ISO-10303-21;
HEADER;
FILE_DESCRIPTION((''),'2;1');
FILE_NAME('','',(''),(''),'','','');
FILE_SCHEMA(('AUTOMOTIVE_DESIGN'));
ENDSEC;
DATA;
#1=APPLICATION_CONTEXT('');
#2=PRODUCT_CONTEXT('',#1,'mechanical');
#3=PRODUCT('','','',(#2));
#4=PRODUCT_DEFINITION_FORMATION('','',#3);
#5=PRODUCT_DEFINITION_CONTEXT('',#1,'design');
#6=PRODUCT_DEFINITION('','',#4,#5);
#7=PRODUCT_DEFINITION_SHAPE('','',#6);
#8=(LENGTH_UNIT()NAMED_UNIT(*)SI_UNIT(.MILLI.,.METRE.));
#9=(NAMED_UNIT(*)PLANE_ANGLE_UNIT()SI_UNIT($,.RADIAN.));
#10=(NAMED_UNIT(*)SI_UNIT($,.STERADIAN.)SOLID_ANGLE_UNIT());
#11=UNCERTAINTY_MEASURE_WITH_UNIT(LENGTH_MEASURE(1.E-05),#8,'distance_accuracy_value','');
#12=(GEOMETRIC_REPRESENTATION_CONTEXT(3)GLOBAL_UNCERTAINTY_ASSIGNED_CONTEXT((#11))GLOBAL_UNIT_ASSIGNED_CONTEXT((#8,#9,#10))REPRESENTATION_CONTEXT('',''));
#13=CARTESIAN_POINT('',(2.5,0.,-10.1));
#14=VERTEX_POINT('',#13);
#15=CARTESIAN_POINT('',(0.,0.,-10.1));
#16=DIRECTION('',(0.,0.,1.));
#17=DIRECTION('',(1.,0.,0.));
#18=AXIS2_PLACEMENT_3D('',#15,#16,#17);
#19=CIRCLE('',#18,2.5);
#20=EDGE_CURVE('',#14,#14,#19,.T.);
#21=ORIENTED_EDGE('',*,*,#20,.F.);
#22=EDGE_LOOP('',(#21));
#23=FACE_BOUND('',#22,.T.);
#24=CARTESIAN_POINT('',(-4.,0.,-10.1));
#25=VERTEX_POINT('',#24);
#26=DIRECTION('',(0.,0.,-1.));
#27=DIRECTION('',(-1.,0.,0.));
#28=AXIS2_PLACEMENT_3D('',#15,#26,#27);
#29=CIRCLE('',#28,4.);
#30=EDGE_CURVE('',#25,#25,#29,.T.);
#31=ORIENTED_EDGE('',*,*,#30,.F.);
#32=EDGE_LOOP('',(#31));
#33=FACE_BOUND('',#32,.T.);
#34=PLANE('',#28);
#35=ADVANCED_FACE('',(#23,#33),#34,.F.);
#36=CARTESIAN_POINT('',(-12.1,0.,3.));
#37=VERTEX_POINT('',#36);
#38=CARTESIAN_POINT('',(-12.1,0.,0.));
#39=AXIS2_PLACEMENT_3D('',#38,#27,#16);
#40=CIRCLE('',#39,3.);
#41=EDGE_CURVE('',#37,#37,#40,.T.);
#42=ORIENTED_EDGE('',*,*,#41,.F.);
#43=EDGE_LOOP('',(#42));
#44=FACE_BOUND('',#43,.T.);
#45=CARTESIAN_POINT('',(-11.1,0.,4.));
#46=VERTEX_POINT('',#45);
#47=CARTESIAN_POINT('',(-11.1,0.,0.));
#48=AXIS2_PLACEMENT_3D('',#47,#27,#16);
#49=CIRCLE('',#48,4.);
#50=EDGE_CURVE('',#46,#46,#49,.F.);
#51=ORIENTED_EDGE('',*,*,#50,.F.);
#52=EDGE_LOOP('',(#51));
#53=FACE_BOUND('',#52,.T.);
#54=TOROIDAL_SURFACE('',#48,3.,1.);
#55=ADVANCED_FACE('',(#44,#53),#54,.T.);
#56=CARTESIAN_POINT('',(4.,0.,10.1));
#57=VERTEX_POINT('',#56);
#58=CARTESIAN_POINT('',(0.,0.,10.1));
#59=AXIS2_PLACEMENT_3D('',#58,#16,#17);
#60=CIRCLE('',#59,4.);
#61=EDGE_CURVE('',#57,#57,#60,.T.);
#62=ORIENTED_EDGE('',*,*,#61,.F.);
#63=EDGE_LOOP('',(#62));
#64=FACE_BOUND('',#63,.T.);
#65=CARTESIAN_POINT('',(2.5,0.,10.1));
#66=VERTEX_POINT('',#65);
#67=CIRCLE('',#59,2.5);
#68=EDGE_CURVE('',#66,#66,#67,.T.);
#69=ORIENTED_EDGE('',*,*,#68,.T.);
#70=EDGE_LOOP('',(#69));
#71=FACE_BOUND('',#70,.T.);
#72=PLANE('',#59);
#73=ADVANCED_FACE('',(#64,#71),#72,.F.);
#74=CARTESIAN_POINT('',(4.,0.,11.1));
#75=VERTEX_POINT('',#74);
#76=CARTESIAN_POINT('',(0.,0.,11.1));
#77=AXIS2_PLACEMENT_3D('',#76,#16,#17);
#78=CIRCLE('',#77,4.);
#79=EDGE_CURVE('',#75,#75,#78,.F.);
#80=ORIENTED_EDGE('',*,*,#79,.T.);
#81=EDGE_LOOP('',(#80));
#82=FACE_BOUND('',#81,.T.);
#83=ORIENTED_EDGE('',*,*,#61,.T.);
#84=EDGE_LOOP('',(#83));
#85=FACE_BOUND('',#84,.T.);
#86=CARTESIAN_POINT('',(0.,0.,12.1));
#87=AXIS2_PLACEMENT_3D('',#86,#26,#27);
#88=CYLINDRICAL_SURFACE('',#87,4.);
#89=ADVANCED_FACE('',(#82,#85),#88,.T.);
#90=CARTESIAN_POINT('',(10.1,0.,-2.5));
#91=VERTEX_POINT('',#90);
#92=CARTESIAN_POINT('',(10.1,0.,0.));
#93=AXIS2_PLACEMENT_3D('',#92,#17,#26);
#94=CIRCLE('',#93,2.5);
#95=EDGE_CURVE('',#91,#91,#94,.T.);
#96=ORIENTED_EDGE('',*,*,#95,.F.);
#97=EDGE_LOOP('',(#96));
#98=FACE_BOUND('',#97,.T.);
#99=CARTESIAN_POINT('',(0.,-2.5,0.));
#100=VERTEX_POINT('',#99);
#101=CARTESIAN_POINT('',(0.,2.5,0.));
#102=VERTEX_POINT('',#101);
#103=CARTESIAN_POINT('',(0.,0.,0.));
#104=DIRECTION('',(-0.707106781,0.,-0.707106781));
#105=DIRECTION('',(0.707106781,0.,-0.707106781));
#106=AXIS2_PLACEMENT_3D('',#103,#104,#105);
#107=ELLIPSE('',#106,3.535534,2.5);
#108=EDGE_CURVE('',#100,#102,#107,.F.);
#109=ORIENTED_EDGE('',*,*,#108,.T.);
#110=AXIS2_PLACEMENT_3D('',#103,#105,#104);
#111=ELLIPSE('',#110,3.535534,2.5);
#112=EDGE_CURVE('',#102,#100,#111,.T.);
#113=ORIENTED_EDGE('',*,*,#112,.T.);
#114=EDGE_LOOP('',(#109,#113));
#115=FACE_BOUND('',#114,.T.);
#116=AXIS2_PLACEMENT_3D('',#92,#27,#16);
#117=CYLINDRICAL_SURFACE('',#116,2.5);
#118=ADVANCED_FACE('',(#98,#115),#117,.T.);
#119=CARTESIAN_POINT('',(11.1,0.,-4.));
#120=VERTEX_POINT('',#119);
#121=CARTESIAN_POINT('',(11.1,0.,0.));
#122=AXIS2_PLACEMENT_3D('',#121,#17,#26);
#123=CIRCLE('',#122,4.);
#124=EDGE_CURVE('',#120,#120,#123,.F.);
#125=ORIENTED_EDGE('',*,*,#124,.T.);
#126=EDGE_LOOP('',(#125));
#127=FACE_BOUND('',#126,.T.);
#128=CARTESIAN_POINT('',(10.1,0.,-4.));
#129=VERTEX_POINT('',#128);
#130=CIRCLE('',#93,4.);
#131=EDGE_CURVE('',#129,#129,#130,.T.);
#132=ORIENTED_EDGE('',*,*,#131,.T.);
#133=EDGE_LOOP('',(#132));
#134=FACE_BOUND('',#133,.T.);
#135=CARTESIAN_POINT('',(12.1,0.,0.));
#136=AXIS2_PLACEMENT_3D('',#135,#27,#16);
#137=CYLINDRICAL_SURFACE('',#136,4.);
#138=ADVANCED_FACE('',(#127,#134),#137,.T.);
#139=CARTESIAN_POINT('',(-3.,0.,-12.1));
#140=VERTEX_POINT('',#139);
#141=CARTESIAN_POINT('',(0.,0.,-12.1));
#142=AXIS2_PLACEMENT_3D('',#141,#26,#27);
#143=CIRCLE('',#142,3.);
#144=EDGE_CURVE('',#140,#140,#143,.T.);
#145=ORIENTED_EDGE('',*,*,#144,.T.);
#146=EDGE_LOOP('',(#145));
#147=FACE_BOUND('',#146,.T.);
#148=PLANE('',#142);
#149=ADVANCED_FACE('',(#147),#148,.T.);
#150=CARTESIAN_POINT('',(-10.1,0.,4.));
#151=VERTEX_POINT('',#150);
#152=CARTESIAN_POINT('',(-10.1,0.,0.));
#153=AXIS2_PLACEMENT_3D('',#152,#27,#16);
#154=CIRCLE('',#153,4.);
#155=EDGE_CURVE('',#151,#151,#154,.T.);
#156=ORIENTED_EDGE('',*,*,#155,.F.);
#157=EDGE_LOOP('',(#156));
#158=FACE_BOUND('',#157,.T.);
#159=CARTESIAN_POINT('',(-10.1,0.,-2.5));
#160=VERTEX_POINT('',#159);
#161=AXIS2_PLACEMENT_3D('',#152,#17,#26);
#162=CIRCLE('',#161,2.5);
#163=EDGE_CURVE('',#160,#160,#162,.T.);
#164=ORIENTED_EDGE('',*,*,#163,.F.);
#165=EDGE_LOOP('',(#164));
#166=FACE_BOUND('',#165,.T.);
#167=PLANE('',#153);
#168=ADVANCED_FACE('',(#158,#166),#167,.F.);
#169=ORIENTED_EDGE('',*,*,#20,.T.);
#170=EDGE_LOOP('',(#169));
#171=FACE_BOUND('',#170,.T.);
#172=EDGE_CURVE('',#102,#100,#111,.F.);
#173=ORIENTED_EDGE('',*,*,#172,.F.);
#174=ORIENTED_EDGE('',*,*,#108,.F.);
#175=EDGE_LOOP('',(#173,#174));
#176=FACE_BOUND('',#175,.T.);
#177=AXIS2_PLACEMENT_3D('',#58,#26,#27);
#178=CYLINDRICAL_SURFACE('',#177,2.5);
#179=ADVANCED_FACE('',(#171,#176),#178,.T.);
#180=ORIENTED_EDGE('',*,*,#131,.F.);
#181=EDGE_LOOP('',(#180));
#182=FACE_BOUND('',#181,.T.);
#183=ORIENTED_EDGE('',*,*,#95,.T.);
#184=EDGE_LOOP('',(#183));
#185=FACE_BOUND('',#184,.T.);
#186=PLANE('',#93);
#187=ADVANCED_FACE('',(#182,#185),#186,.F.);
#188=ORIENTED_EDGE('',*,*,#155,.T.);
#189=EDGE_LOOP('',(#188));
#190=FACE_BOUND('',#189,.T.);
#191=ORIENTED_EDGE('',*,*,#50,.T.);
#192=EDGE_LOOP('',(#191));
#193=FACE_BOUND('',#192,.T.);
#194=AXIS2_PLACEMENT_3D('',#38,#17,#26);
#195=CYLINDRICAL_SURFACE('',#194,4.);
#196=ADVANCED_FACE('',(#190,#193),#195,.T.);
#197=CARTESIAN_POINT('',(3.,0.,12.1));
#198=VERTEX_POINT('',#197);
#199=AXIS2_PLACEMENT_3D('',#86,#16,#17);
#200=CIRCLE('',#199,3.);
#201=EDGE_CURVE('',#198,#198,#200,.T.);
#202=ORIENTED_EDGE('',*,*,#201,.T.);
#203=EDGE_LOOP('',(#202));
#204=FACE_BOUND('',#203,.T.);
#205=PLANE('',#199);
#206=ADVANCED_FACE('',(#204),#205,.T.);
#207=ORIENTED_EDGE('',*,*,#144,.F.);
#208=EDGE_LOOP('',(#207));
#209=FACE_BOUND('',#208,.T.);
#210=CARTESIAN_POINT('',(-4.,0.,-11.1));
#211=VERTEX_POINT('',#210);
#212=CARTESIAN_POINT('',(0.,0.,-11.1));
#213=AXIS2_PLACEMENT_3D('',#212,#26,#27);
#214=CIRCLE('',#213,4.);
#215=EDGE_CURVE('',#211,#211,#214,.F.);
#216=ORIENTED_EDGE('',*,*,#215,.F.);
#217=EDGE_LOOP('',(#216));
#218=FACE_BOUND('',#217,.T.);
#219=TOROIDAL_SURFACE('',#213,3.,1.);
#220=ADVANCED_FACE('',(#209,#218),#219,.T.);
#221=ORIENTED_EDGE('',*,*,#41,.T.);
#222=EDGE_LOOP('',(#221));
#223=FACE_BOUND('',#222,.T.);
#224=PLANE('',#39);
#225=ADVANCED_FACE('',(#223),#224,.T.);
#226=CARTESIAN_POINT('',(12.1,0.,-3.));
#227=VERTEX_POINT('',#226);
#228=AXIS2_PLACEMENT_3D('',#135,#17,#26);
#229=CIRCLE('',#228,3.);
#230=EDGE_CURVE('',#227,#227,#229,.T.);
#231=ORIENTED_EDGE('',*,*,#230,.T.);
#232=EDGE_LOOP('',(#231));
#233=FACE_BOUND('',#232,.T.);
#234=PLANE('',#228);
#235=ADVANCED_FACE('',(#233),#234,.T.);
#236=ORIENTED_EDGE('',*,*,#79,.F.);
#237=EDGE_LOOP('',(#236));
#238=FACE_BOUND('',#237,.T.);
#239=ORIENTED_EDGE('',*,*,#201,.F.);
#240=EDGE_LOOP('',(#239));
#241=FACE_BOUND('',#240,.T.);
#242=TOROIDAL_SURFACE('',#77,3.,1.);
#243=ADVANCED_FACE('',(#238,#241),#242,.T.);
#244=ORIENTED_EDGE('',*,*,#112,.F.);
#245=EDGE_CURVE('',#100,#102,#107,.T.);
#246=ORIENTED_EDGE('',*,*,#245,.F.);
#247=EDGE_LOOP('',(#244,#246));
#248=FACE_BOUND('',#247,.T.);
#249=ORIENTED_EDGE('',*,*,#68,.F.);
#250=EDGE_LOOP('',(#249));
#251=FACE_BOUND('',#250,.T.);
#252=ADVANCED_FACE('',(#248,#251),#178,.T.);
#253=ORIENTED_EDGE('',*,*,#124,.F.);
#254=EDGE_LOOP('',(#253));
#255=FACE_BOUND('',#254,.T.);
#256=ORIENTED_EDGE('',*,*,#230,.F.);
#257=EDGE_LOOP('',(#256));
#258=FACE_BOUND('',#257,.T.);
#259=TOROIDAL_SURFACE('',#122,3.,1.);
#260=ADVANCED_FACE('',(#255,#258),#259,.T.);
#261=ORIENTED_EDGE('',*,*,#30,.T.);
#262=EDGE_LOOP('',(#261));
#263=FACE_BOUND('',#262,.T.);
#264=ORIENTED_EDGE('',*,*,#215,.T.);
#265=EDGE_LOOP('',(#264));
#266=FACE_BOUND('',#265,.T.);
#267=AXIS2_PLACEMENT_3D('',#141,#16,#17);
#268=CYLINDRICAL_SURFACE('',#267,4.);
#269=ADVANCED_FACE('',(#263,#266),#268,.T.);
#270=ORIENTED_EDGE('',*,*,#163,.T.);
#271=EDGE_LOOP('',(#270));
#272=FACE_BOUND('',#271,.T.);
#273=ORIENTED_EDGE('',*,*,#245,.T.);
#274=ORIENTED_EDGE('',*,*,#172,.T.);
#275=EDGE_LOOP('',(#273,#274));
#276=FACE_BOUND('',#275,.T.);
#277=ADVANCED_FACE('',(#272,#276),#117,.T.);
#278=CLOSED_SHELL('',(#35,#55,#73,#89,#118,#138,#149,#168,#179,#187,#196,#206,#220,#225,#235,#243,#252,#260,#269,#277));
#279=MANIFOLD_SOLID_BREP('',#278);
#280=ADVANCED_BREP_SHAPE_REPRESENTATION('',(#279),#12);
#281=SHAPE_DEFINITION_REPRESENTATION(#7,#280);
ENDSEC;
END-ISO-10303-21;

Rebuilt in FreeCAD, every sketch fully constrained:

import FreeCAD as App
import Part
import Sketcher

V = App.Vector


def edges_at(feature, points):
    """Names of the edges that pass closest to the given points."""
    edges = feature.Shape.Edges
    near = lambda p: min(range(len(edges)), key=lambda i: edges[i].distToShape(Part.Vertex(*p))[0])
    return sorted({f"Edge{near(p) + 1}" for p in points})

doc = App.newDocument("Part")
body = doc.addObject("PartDesign::Body", "Body")

sketch1 = body.newObject("Sketcher::SketchObject", "Sketch")
sketch1.AttachmentSupport = (doc.getObject("XY_Plane"), [""])
sketch1.MapMode = "FlatFace"
sketch1.addGeometry(Part.Circle(V(0, 0, 0), V(0, 0, 1), 2.5), False)
sketch1.addConstraint([
    Sketcher.Constraint("Coincident", 0, 3, -1, 1),
    Sketcher.Constraint("Diameter", 0, 5.0),
])
pad1 = body.newObject("PartDesign::Pad", "Pad")
pad1.Profile = sketch1
pad1.Length = 20.2
pad1.Midplane = True

sketch2 = body.newObject("Sketcher::SketchObject", "Sketch001")
sketch2.AttachmentSupport = (doc.getObject("YZ_Plane"), [""])
sketch2.MapMode = "FlatFace"
sketch2.addGeometry(Part.Circle(V(0, 0, 0), V(0, 0, 1), 2.5), False)
sketch2.addConstraint([
    Sketcher.Constraint("Coincident", 0, 3, -1, 1),
    Sketcher.Constraint("Diameter", 0, 5.0),
])
pad2 = body.newObject("PartDesign::Pad", "Pad001")
pad2.Profile = sketch2
pad2.Length = 20.2
pad2.Midplane = True

sketch3 = body.newObject("Sketcher::SketchObject", "Sketch002")
sketch3.AttachmentSupport = (doc.getObject("YZ_Plane"), [""])
sketch3.MapMode = "FlatFace"
sketch3.AttachmentOffset = App.Placement(V(0, 0, 10.1), App.Rotation())
sketch3.addGeometry(Part.Circle(V(0, 0, 0), V(0, 0, 1), 4), False)
sketch3.addConstraint([
    Sketcher.Constraint("Coincident", 0, 3, -1, 1),
    Sketcher.Constraint("Diameter", 0, 8.0),
])
pad3 = body.newObject("PartDesign::Pad", "Pad002")
pad3.Profile = sketch3
pad3.Length = 2

sketch4 = body.newObject("Sketcher::SketchObject", "Sketch003")
sketch4.AttachmentSupport = (doc.getObject("YZ_Plane"), [""])
sketch4.MapMode = "FlatFace"
sketch4.AttachmentOffset = App.Placement(V(0, 0, -10.1), App.Rotation())
sketch4.addGeometry(Part.Circle(V(0, 0, 0), V(0, 0, 1), 4), False)
sketch4.addConstraint([
    Sketcher.Constraint("Coincident", 0, 3, -1, 1),
    Sketcher.Constraint("Diameter", 0, 8.0),
])
pad4 = body.newObject("PartDesign::Pad", "Pad003")
pad4.Profile = sketch4
pad4.Length = 2
pad4.Reversed = True

sketch5 = body.newObject("Sketcher::SketchObject", "Sketch004")
sketch5.AttachmentSupport = (doc.getObject("XY_Plane"), [""])
sketch5.MapMode = "FlatFace"
sketch5.AttachmentOffset = App.Placement(V(0, 0, 10.1), App.Rotation())
sketch5.addGeometry(Part.Circle(V(0, 0, 0), V(0, 0, 1), 4), False)
sketch5.addConstraint([
    Sketcher.Constraint("Coincident", 0, 3, -1, 1),
    Sketcher.Constraint("Diameter", 0, 8.0),
])
pad5 = body.newObject("PartDesign::Pad", "Pad004")
pad5.Profile = sketch5
pad5.Length = 2

sketch6 = body.newObject("Sketcher::SketchObject", "Sketch005")
sketch6.AttachmentSupport = (doc.getObject("XY_Plane"), [""])
sketch6.MapMode = "FlatFace"
sketch6.AttachmentOffset = App.Placement(V(0, 0, -10.1), App.Rotation())
sketch6.addGeometry(Part.Circle(V(0, 0, 0), V(0, 0, 1), 4), False)
sketch6.addConstraint([
    Sketcher.Constraint("Coincident", 0, 3, -1, 1),
    Sketcher.Constraint("Diameter", 0, 8.0),
])
pad6 = body.newObject("PartDesign::Pad", "Pad005")
pad6.Profile = sketch6
pad6.Length = 2
pad6.Reversed = True
doc.recompute()

fillet = body.newObject("PartDesign::Fillet", "Fillet")
fillet.Base = (pad6, edges_at(pad6, [
    (12.1, 0, 4),
    (-12.1, 0, 4),
    (-4, 0, 12.1),
    (-4, 0, -12.1),
]))
fillet.Radius = 1

doc.recompute()
